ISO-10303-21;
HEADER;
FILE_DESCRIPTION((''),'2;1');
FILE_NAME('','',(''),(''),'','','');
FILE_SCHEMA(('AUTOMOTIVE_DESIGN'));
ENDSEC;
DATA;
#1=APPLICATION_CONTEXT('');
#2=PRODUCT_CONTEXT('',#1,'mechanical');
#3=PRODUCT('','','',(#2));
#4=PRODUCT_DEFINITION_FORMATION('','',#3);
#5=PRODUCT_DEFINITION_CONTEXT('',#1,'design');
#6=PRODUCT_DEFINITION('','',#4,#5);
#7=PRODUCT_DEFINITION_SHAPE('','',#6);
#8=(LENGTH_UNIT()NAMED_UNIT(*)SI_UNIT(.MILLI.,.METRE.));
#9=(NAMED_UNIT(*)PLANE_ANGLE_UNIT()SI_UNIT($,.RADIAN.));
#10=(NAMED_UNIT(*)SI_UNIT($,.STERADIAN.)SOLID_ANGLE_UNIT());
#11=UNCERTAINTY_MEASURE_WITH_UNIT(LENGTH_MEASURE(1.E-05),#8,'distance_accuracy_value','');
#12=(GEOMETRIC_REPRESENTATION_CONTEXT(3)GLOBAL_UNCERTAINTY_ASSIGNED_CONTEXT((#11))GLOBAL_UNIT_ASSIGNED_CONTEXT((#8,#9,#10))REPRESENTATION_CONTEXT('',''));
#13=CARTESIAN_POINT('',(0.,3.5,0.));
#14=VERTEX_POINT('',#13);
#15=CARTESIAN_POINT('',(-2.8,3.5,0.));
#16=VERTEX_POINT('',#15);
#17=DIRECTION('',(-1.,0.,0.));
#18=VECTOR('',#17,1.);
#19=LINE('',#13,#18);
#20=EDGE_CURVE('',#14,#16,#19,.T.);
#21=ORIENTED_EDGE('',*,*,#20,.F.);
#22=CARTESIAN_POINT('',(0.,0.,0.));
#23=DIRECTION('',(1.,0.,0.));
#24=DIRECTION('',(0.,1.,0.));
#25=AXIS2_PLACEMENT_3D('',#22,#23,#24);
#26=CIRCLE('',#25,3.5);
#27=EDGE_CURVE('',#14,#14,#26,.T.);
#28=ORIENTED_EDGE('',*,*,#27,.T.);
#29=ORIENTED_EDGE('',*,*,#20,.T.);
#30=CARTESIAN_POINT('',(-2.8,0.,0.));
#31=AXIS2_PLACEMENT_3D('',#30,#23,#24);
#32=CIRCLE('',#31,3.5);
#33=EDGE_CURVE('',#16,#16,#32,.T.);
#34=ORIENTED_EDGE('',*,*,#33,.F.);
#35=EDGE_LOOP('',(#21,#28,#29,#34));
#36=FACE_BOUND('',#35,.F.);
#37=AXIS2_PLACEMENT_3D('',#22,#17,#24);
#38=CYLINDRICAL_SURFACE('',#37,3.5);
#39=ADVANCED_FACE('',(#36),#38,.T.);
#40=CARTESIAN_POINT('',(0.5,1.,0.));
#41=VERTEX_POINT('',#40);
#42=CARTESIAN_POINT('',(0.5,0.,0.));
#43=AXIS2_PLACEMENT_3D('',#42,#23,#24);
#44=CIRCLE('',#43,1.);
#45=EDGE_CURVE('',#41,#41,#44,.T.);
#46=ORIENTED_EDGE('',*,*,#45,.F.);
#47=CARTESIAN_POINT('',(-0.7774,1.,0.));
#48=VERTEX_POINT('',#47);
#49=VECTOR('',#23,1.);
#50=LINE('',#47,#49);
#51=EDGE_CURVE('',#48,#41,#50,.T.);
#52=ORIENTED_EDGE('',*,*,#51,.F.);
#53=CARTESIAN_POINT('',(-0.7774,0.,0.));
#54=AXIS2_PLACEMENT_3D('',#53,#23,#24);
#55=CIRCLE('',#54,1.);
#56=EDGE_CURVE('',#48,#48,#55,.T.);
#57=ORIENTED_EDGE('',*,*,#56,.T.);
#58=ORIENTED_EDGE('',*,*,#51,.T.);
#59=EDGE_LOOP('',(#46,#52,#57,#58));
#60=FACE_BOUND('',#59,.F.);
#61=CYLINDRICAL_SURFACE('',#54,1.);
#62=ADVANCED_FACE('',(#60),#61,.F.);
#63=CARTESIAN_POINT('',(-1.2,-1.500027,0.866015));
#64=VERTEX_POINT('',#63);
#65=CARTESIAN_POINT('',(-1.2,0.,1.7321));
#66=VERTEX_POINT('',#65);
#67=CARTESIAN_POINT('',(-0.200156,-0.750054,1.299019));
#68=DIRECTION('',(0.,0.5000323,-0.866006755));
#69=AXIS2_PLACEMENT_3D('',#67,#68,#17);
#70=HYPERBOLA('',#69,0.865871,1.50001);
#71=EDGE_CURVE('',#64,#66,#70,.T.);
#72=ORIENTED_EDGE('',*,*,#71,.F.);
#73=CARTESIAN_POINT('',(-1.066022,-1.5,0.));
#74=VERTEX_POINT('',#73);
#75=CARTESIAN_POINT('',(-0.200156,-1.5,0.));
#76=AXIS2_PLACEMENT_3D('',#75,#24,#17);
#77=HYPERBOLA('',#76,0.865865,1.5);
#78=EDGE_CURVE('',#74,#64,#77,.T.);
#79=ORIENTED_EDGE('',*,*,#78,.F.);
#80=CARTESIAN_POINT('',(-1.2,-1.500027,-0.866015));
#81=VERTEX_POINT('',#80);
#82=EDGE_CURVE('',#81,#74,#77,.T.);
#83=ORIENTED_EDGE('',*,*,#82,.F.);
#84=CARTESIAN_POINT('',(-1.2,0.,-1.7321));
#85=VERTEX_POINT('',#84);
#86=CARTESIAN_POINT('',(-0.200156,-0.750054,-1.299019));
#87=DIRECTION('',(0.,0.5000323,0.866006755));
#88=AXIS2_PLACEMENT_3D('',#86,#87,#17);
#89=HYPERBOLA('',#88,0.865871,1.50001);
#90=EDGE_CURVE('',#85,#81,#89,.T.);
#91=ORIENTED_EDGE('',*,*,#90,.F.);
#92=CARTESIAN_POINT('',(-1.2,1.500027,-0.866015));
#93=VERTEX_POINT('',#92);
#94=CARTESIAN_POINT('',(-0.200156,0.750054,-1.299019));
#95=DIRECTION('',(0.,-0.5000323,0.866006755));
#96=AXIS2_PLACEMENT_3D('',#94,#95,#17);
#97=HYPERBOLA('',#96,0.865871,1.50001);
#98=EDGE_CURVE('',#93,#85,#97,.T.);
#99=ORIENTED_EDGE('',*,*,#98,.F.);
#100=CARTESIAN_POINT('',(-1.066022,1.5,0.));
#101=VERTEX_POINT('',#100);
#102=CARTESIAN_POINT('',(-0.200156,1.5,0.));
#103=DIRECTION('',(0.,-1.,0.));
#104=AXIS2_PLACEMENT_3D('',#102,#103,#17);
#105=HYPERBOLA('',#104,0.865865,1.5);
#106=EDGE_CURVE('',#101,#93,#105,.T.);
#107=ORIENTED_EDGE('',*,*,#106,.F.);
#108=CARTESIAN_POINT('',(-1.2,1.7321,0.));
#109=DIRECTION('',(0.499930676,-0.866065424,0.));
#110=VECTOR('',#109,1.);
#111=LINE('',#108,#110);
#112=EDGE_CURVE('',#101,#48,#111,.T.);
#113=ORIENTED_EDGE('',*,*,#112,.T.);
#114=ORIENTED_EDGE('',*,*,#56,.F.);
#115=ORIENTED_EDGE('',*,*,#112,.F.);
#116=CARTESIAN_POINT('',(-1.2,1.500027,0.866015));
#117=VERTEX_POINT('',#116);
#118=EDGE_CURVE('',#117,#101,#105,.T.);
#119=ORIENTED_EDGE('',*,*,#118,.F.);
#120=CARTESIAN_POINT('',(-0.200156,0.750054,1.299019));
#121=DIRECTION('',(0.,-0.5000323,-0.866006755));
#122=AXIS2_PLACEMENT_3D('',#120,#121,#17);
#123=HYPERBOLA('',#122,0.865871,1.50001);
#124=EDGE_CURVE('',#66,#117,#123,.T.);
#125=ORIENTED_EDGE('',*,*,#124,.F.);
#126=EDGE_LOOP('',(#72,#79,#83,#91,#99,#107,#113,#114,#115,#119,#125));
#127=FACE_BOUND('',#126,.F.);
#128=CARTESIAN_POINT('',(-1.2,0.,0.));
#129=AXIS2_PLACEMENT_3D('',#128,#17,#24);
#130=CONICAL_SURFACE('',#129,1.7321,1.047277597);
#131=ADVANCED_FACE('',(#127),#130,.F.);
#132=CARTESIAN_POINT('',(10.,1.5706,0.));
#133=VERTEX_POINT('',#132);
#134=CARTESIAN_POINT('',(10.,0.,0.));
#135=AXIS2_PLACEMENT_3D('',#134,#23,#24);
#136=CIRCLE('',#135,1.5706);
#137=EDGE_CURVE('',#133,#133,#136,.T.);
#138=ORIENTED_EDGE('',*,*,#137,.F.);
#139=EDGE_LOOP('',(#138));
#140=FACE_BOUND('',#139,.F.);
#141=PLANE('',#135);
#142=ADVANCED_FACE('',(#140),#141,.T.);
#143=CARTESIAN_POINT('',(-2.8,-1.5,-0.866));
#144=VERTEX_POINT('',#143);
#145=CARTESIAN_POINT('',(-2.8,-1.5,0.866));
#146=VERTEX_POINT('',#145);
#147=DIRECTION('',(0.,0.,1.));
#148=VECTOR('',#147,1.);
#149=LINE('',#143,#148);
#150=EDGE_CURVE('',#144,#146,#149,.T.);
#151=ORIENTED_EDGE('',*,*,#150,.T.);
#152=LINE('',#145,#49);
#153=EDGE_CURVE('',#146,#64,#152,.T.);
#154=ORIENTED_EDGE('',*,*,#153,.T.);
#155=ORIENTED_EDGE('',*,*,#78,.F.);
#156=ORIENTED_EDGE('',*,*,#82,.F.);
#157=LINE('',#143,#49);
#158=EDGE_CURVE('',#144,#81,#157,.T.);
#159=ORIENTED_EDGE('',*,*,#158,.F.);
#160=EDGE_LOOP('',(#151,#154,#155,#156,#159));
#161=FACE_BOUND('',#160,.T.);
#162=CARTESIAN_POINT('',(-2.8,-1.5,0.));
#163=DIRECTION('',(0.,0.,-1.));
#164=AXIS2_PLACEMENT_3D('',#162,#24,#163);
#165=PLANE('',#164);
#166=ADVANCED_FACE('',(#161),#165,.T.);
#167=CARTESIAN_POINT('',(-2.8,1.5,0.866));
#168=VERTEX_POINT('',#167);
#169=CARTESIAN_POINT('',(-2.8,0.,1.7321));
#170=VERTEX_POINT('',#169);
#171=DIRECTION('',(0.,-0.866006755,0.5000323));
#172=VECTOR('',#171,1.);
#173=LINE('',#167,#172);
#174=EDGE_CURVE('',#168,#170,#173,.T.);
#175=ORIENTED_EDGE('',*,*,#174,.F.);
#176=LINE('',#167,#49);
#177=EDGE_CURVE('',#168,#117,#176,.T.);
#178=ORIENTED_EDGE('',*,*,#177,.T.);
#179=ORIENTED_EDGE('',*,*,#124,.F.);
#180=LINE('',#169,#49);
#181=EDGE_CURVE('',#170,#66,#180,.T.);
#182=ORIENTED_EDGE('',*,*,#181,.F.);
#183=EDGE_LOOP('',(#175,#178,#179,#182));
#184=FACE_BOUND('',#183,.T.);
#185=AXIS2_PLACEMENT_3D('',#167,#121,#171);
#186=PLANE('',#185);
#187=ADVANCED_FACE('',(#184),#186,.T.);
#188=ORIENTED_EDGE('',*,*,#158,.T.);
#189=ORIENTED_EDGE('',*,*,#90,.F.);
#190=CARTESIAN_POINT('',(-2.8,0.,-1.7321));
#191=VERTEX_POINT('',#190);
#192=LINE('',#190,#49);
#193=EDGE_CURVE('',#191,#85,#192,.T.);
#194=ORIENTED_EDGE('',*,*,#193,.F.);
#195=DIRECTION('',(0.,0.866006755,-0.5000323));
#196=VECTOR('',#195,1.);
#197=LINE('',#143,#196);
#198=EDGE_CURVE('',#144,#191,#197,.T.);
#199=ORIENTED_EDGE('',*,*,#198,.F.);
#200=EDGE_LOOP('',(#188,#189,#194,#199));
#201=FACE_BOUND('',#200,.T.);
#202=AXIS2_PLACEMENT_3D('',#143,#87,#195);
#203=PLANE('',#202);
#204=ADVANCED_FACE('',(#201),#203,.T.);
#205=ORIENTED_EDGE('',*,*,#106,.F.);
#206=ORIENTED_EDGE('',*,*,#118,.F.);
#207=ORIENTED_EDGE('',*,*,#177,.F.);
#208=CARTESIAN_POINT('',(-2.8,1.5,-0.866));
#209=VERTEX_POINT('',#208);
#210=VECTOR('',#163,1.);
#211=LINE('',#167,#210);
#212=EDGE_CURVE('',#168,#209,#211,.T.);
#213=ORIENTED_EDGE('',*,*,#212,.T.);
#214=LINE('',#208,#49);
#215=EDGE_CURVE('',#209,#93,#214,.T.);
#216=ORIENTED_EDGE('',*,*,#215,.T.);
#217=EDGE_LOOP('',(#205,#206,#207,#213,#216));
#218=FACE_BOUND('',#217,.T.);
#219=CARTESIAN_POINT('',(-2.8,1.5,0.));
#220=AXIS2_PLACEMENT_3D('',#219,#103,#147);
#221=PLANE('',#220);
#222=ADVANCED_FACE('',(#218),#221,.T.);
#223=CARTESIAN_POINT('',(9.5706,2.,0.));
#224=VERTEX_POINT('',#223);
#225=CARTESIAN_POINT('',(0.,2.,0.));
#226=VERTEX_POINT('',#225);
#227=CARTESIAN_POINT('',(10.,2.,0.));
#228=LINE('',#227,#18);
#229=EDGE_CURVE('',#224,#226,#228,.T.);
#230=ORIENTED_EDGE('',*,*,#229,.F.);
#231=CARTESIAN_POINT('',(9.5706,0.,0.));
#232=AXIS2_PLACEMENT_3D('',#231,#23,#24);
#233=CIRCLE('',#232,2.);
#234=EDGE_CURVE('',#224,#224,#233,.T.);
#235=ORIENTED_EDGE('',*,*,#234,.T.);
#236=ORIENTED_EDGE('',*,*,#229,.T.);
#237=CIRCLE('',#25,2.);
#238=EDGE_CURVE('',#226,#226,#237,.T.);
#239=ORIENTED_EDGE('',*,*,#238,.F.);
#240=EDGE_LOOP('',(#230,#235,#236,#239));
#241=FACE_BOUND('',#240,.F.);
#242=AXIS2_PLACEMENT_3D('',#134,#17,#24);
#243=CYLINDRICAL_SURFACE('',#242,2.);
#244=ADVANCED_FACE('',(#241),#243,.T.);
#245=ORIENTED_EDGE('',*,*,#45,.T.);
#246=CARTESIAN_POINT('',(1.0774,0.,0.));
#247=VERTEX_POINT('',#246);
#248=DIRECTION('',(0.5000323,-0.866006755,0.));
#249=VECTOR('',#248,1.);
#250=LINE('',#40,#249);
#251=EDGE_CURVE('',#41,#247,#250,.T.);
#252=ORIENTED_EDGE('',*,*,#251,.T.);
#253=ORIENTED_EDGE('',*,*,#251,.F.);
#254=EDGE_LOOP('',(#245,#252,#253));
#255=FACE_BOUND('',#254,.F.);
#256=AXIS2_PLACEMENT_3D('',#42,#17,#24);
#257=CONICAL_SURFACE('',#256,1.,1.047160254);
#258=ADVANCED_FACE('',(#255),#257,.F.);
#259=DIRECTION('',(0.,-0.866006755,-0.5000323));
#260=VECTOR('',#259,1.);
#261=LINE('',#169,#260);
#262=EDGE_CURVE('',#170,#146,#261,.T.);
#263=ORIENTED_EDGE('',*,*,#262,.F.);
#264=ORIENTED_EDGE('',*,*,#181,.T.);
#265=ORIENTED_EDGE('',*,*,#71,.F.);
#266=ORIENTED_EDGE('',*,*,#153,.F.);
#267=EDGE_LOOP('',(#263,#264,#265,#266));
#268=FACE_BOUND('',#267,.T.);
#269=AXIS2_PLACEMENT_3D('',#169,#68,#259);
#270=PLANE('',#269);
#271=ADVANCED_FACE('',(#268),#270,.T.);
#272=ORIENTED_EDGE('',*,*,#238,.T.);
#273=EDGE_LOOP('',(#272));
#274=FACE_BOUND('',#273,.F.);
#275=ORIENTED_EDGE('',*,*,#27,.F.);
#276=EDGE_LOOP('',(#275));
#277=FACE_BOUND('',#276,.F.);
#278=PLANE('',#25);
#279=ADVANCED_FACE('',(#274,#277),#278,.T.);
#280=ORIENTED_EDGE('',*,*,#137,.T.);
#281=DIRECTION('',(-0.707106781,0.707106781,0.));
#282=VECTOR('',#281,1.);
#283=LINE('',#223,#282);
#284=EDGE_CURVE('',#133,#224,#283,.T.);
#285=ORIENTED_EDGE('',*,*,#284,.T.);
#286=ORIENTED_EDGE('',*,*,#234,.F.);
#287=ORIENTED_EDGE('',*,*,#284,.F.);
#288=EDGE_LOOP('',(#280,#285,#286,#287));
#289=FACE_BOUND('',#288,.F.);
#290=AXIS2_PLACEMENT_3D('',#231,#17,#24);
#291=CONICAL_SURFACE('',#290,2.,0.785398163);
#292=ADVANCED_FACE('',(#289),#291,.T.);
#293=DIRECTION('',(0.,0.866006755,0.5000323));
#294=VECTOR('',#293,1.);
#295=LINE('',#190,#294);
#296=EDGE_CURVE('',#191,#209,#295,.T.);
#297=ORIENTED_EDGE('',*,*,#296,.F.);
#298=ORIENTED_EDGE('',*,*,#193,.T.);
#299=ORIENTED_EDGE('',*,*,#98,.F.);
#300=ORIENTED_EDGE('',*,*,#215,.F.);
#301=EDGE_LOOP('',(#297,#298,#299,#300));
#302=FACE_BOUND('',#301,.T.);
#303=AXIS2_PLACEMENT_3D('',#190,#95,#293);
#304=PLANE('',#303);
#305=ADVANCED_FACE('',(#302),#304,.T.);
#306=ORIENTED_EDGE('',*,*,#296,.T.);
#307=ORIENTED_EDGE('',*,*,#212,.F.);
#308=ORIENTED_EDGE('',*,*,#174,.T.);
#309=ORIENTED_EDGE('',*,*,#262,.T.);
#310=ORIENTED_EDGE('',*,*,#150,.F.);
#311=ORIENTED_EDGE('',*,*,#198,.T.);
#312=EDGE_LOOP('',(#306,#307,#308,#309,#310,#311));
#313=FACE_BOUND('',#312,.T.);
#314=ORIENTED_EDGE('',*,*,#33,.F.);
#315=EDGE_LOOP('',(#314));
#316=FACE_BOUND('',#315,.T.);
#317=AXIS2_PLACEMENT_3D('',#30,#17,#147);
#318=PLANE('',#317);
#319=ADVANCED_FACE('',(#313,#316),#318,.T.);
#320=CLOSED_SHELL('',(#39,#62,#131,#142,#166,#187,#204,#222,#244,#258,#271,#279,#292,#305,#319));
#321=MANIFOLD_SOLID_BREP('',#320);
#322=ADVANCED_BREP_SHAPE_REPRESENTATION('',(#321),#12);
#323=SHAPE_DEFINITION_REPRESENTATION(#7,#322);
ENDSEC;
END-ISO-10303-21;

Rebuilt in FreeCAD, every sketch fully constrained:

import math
import FreeCAD as App
import Part
import Sketcher
from FreeCAD import Vector


def edges_at(feature, points):
    """Names of the edges that pass closest to the given points."""
    edges = feature.Shape.Edges
    near = lambda p: min(range(len(edges)), key=lambda i: edges[i].distToShape(Part.Vertex(*p))[0])
    return sorted({f"Edge{near(p) + 1}" for p in points})


def add_polygon(sketch, points):
    """Adds a closed chain of lines whose ends are joined by coincident constraints."""
    first, n = sketch.GeometryCount, len(points)
    for a, b in zip(points, points[1:] + points[:1]):
        sketch.addGeometry(Part.LineSegment(App.Vector(*a, 0), App.Vector(*b, 0)), False)
    for i in range(n):
        sketch.addConstraint(Sketcher.Constraint("Coincident", first + i, 2, first + (i + 1) % n, 1))

doc = App.newDocument("Part")
params = doc.addObject("Spreadsheet::Sheet", "Params")
for row, (alias, value) in enumerate([
    ("sketch1_width", "10 mm"),
    ("sketch1_height", "2 mm"),
    ("sketch1_width2", "2.8 mm"),
    ("sketch1_width3", "1.6 mm"),
    ("sketch1_height2", "1.5 mm"),
    ("revolution_angle", "360 deg"),
    ("pad1_length", "1.734 mm"),
    ("chamfer_size", "0.4294 mm"),
    ("chamfer_size2", "0.4294 mm"),
], start=1):
    params.set(f"A{row}", alias)
    params.set(f"B{row}", "=" + value)
    params.setAlias(f"B{row}", alias)

body = doc.addObject("PartDesign::Body", "Body")

# Sketch on XY plane
sketch1 = body.newObject("Sketcher::SketchObject", "Sketch")
sketch1.AttachmentSupport = (doc.getObject("XY_Plane"), [""])
sketch1.MapMode = "FlatFace"
add_polygon(sketch1, [(0.5, 1), (1.0774, 0), (10, 0), (10, 2), (0, 2), (0, 3.5), (-2.8, 3.5), (-2.8, 1.7321), (-1.2, 1.7321), (-0.7774, 1)])  # lines 0-9
sketch1.addConstraint([
    Sketcher.Constraint("Horizontal", 1),
    Sketcher.Constraint("Vertical", 2),
    Sketcher.Constraint("Horizontal", 3),
    Sketcher.Constraint("Vertical", 4),
    Sketcher.Constraint("Horizontal", 5),
    Sketcher.Constraint("Vertical", 6),
    Sketcher.Constraint("Horizontal", 7),
    Sketcher.Constraint("Horizontal", 9),
    Sketcher.Constraint("PointOnObject", 0, 2, -1),
    Sketcher.Constraint("PointOnObject", 3, 2, -2),
    Sketcher.Constraint("Parallel", 0, 8),
    Sketcher.Constraint("DistanceX", 3, 2, 3, 1, 10.0),
    Sketcher.Constraint("DistanceY", 2, 1, 2, 2, 2.0),
    Sketcher.Constraint("DistanceX", 5, 2, 5, 1, 2.8),
    Sketcher.Constraint("DistanceX", 7, 1, 7, 2, 1.6),
    Sketcher.Constraint("DistanceY", 4, 1, 4, 2, 1.5),
    Sketcher.Constraint("DistanceY", -1, 1, 8, 2, 1.0),
    Sketcher.Constraint("DistanceX", -1, 1, 9, 2, 0.5),
    Sketcher.Constraint("DistanceY", 6, 2, 6, 1, 1.768),
    Sketcher.Constraint("DistanceX", 1, 1, 1, 2, 8.9226),
])
sketch1.setExpression("Constraints[21]", "Params.sketch1_width")
sketch1.setExpression("Constraints[22]", "Params.sketch1_height")
sketch1.setExpression("Constraints[23]", "Params.sketch1_width2")
sketch1.setExpression("Constraints[24]", "Params.sketch1_width3")
sketch1.setExpression("Constraints[25]", "Params.sketch1_height2")
revolution = body.newObject("PartDesign::Revolution", "Revolution")
revolution.Profile = sketch1
revolution.ReferenceAxis = (sketch1, ["H_Axis"])
revolution.setExpression("Angle", "Params.revolution_angle")

# Sketch on YZ plane
sketch2 = body.newObject("Sketcher::SketchObject", "Sketch001")
sketch2.AttachmentSupport = (doc.getObject("YZ_Plane"), [""])
sketch2.MapMode = "FlatFace"
sketch2.AttachmentOffset = App.Placement(Vector(0, 0, -2.8), App.Rotation())
sketch2.addGeometry([
    Part.LineSegment(Vector(1.5, 0.866, 0), Vector(0, 1.7321, 0)),  # 0
    Part.ArcOfCircle(Part.Circle(Vector(0, 0, 0), Vector(0, 0, 1), 1.7321), math.radians(29.999272), math.radians(90)),  # 1
    Part.ArcOfCircle(Part.Circle(Vector(0, 0, 0), Vector(0, 0, 1), 1.7321), math.radians(90), math.radians(150.000728)),  # 2
    Part.LineSegment(Vector(0, 1.7321, 0), Vector(-1.5, 0.866, 0)),  # 3
    Part.ArcOfCircle(Part.Circle(Vector(0, 0, 0), Vector(0, 0, 1), 1.7321), math.radians(-29.999272), math.radians(29.999272)),  # 4
    Part.LineSegment(Vector(1.5, 0.866, 0), Vector(1.5, -0.866, 0)),  # 5
    Part.LineSegment(Vector(-1.5, 0.866, 0), Vector(-1.5, -0.866, 0)),  # 6
    Part.ArcOfCircle(Part.Circle(Vector(0, 0, 0), Vector(0, 0, 1), 1.7321), math.radians(150.000728), math.radians(209.999272)),  # 7
    Part.LineSegment(Vector(-1.5, -0.866, 0), Vector(0, -1.7321, 0)),  # 8
    Part.ArcOfCircle(Part.Circle(Vector(0, 0, 0), Vector(0, 0, 1), 1.7321), math.radians(-150.000728), math.radians(-90)),  # 9
    Part.ArcOfCircle(Part.Circle(Vector(0, 0, 0), Vector(0, 0, 1), 1.7321), math.radians(-90), math.radians(-29.999272)),  # 10
    Part.LineSegment(Vector(0, -1.7321, 0), Vector(1.5, -0.866, 0)),  # 11
], False)
sketch2.addConstraint([
    Sketcher.Constraint("Coincident", 0, 1, 1, 1),
    Sketcher.Constraint("Coincident", 1, 2, 0, 2),
    Sketcher.Constraint("Coincident", 2, 1, 3, 1),
    Sketcher.Constraint("Coincident", 3, 2, 2, 2),
    Sketcher.Constraint("Coincident", 4, 1, 5, 2),
    Sketcher.Constraint("Coincident", 5, 1, 4, 2),
    Sketcher.Constraint("Coincident", 6, 1, 7, 1),
    Sketcher.Constraint("Coincident", 7, 2, 6, 2),
    Sketcher.Constraint("Coincident", 8, 1, 9, 1),
    Sketcher.Constraint("Coincident", 9, 2, 8, 2),
    Sketcher.Constraint("Coincident", 10, 1, 11, 1),
    Sketcher.Constraint("Coincident", 11, 2, 10, 2),
    Sketcher.Constraint("Vertical", 5),
    Sketcher.Constraint("Vertical", 6),
    Sketcher.Constraint("Coincident", 1, 3, -1, 1),
    Sketcher.Constraint("Coincident", 2, 3, -1, 1),
    Sketcher.Constraint("Coincident", 4, 3, -1, 1),
    Sketcher.Constraint("Coincident", 7, 3, -1, 1),
    Sketcher.Constraint("Coincident", 9, 3, -1, 1),
    Sketcher.Constraint("Coincident", 10, 3, -1, 1),
    Sketcher.Constraint("Coincident", 2, 1, 1, 2),
    Sketcher.Constraint("Coincident", 5, 1, 0, 1),
    Sketcher.Constraint("Coincident", 6, 1, 3, 2),
    Sketcher.Constraint("Coincident", 8, 1, 7, 2),
    Sketcher.Constraint("Coincident", 10, 1, 9, 2),
    Sketcher.Constraint("PointOnObject", 1, 2, -2),
    Sketcher.Constraint("PointOnObject", 9, 2, -2),
    Sketcher.Constraint("Parallel", 0, 8),
    Sketcher.Constraint("Parallel", 3, 11),
    Sketcher.Constraint("Radius", 1, 1.732),
    Sketcher.Constraint("DistanceX", -1, 1, 0, 1, 1.5),
])
pad1 = body.newObject("PartDesign::Pad", "Pad")
pad1.Profile = sketch2
pad1.setExpression("Length", "Params.pad1_length")
doc.recompute()

chamfer = body.newObject("PartDesign::Chamfer", "Chamfer")
chamfer.Base = (pad1, edges_at(pad1, [(10, -2, 0)]))
chamfer.ChamferType = "Two distances"
chamfer.setExpression("Size", "Params.chamfer_size")
chamfer.setExpression("Size2", "Params.chamfer_size2")

doc.recompute()
